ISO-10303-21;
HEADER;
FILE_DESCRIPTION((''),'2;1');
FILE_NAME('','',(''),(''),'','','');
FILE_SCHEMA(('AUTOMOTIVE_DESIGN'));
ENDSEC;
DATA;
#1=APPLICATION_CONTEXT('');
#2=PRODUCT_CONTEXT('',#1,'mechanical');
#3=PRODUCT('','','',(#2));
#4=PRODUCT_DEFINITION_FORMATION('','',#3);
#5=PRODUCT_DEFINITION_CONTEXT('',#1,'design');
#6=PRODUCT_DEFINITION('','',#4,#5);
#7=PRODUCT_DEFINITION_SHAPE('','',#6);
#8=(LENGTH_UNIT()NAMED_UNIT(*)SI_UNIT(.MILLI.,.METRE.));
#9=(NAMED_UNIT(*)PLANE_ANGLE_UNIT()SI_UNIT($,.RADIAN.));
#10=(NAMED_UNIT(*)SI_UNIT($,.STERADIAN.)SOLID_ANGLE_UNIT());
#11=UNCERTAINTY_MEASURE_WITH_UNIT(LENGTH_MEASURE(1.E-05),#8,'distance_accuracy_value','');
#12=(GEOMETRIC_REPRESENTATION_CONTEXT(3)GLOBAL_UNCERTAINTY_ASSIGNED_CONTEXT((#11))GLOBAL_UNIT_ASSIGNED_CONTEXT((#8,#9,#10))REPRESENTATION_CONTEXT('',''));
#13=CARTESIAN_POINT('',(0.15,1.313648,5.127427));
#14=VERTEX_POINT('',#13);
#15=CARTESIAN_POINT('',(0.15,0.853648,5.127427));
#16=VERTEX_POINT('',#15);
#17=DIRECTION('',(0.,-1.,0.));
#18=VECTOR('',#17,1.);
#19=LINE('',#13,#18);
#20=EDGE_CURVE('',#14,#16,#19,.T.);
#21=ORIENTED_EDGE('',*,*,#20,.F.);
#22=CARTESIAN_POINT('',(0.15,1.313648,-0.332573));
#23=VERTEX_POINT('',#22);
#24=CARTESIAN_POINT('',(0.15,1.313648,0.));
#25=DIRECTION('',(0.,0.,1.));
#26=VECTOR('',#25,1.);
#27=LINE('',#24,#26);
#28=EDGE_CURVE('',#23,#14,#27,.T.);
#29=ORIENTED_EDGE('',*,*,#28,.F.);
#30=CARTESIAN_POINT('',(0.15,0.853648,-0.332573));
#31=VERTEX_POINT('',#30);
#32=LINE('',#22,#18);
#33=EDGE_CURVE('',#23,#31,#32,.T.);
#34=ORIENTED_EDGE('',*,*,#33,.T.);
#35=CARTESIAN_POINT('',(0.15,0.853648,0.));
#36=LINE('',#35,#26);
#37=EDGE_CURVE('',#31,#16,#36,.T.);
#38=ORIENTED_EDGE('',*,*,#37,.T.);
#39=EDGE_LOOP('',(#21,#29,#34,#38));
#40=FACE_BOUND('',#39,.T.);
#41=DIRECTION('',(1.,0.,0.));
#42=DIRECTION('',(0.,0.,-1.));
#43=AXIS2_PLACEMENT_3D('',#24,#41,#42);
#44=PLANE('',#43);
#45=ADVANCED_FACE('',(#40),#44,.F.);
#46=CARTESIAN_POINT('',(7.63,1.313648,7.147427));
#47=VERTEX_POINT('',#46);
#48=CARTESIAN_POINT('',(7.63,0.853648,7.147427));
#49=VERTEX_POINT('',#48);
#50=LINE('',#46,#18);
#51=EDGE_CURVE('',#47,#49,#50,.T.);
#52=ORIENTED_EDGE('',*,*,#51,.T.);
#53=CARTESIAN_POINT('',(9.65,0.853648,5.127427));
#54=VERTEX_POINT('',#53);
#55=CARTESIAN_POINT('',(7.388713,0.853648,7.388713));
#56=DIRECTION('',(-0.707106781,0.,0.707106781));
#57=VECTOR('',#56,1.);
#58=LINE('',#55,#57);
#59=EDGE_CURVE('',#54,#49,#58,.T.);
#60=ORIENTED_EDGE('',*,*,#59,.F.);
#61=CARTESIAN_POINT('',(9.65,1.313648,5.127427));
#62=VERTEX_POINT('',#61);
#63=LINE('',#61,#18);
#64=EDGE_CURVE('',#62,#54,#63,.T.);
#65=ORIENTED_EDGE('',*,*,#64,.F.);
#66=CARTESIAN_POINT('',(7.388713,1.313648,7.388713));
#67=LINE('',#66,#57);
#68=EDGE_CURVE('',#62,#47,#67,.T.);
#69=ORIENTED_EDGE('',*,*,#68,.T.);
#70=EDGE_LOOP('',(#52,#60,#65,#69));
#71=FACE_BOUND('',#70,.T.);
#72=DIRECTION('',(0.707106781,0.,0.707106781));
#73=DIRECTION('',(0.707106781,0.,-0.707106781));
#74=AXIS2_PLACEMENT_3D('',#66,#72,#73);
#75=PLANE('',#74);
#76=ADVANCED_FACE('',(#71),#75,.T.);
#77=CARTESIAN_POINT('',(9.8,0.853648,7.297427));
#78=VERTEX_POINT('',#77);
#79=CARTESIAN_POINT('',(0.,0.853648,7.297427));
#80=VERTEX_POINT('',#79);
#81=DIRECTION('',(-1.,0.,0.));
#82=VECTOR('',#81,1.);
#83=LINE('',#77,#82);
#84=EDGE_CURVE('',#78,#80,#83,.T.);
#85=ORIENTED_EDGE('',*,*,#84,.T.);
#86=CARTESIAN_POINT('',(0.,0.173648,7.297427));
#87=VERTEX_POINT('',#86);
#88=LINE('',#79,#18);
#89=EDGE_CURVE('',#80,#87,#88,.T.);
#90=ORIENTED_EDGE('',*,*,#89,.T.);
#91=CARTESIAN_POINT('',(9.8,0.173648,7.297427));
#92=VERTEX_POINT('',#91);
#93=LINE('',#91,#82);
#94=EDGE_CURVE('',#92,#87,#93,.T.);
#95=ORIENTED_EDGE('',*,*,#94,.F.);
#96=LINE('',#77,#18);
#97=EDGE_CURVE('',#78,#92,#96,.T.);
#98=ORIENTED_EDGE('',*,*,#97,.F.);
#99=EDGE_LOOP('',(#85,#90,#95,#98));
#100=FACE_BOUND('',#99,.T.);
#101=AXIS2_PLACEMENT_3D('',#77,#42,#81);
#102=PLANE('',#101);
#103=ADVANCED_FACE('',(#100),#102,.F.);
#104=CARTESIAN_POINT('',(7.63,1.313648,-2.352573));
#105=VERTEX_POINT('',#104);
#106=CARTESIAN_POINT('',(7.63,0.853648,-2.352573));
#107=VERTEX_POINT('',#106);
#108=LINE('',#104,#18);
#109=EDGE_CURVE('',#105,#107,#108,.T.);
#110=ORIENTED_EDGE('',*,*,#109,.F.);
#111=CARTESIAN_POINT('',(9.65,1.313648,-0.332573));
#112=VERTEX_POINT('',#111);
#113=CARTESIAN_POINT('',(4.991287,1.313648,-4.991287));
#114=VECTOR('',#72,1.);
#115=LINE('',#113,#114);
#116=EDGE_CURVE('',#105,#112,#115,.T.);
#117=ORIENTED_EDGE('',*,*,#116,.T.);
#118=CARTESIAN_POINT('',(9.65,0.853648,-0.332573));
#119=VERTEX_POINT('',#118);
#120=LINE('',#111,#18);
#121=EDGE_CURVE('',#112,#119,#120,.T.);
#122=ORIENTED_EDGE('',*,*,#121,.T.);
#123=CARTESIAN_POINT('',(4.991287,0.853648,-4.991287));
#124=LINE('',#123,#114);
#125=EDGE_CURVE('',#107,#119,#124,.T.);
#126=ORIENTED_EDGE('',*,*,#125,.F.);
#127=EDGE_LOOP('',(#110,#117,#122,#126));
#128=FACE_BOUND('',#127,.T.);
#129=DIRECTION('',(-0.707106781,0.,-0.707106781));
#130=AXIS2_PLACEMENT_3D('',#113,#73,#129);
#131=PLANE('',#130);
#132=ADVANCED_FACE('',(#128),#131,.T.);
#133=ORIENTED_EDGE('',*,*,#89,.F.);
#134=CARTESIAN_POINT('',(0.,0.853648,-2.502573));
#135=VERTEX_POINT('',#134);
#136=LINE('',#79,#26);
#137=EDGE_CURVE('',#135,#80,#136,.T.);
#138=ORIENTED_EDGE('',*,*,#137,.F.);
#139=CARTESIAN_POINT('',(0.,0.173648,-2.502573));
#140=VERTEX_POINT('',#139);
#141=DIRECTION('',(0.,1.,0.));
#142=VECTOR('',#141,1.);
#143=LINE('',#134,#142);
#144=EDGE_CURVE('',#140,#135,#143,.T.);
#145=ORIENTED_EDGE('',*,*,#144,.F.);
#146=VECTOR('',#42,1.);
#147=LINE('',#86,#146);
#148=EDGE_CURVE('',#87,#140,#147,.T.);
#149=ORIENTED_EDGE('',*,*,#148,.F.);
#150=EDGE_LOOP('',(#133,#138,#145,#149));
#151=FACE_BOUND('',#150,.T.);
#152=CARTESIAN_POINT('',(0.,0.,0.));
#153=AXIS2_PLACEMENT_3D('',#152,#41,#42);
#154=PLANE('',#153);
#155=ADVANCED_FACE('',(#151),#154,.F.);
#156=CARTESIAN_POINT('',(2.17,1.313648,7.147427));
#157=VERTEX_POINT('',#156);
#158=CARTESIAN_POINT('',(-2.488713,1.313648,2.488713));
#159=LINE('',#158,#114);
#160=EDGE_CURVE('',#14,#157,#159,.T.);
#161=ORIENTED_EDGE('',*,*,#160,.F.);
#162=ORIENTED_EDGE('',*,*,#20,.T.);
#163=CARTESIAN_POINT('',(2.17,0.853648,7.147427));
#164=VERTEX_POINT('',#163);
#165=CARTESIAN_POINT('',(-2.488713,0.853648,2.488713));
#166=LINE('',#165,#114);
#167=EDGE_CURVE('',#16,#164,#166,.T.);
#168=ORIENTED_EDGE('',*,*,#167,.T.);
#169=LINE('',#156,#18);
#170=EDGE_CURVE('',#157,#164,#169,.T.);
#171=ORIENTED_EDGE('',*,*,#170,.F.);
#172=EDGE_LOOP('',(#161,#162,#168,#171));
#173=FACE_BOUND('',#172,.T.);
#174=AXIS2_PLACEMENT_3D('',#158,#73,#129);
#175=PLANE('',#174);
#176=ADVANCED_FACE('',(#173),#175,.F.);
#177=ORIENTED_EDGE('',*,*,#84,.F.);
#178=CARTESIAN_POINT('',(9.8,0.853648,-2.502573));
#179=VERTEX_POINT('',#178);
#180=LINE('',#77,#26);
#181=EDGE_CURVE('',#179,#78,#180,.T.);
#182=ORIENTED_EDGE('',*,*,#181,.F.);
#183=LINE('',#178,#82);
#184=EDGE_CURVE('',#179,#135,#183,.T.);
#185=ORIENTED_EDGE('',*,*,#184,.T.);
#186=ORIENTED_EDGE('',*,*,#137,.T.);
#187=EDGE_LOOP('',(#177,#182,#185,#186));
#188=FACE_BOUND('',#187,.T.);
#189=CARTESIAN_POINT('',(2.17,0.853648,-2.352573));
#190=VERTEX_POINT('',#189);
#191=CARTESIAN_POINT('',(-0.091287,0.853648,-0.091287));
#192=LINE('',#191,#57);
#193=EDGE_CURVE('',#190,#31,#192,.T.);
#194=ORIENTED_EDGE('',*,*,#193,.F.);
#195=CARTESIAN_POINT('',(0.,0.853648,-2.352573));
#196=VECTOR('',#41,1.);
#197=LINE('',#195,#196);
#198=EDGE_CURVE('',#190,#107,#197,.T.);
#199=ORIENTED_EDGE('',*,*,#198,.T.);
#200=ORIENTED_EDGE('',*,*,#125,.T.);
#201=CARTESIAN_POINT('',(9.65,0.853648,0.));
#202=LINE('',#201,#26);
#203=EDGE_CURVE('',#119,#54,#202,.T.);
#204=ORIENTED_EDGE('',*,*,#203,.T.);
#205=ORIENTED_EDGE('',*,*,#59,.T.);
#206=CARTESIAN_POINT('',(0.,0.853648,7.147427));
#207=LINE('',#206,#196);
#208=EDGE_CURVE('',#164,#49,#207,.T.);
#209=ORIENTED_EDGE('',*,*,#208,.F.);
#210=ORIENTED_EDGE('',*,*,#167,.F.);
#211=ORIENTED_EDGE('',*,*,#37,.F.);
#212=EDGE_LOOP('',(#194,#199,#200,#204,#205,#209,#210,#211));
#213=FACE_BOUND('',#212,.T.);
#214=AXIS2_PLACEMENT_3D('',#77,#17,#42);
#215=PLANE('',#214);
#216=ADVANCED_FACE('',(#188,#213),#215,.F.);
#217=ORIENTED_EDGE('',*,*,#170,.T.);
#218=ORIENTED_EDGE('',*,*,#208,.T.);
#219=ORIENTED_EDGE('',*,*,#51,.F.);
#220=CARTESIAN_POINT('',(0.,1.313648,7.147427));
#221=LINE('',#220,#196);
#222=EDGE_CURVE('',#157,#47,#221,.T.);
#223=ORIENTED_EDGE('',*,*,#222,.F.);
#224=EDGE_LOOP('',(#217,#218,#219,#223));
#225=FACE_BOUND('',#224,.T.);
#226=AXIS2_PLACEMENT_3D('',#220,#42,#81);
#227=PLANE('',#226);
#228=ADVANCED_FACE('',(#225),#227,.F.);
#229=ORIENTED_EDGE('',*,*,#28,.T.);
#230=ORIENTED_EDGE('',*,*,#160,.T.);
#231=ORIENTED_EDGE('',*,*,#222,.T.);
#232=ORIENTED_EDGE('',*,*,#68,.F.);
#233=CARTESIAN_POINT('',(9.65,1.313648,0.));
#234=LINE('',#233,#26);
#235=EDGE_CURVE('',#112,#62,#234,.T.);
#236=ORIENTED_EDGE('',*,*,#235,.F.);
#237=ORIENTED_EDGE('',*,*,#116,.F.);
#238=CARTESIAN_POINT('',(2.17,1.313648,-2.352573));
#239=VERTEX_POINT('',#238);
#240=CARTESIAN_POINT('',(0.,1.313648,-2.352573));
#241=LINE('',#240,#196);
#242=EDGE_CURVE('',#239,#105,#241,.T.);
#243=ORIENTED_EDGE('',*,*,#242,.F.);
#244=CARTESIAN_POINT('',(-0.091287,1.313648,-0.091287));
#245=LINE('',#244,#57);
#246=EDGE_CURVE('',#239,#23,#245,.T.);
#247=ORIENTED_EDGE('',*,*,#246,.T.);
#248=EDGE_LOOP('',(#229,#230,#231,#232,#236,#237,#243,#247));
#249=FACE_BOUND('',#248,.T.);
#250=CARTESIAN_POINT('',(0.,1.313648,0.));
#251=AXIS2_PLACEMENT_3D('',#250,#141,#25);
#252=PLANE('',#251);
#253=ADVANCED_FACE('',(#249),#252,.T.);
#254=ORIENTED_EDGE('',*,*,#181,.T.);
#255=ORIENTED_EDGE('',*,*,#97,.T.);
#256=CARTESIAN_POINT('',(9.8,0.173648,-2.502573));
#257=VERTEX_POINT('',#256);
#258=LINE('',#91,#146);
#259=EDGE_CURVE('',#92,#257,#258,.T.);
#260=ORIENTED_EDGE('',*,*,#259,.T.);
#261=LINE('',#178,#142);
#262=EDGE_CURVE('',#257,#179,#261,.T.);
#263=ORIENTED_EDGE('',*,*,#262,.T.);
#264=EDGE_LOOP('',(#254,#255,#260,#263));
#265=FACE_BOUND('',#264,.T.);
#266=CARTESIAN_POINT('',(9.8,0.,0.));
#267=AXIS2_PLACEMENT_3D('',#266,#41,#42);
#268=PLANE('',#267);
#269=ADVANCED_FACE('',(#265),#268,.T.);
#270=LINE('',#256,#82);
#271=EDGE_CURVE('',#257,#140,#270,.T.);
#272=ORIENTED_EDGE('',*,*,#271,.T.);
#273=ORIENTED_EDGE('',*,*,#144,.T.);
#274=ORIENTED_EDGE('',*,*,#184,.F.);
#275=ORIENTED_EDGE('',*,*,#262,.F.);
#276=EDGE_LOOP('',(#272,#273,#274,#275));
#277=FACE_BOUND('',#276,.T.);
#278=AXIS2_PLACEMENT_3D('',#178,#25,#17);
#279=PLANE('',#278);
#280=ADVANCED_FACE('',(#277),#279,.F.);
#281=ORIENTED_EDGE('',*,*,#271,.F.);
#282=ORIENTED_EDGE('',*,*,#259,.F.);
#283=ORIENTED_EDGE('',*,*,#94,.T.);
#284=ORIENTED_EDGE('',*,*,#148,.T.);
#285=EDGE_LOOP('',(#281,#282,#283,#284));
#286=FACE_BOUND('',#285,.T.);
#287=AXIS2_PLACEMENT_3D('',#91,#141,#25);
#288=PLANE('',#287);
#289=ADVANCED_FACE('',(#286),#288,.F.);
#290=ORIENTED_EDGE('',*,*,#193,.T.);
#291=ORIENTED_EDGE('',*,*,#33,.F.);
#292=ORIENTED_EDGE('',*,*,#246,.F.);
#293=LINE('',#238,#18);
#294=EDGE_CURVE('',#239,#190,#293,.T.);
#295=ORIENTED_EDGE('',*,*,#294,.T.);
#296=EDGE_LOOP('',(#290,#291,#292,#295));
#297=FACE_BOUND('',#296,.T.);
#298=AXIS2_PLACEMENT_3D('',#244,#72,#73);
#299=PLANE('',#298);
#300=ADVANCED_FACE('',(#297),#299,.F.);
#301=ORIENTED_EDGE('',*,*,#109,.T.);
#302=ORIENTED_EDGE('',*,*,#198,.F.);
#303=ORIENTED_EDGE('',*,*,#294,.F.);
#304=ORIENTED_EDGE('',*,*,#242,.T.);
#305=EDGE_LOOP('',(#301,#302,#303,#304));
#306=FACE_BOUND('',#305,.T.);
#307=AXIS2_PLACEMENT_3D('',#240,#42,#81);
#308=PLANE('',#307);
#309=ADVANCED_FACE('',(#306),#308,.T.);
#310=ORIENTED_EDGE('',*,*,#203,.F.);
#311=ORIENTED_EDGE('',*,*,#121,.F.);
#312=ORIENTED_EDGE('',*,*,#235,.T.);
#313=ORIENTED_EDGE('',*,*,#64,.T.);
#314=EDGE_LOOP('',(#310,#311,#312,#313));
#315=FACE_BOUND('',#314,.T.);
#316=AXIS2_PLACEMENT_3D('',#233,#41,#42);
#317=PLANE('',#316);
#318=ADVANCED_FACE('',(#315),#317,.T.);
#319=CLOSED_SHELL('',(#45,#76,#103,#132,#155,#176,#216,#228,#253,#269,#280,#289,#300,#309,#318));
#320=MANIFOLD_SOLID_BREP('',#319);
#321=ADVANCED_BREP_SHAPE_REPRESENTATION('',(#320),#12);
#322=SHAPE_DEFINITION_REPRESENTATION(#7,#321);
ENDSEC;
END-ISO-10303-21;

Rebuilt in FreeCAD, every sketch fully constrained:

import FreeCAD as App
import Part
import Sketcher
from FreeCAD import Vector


def add_polygon(sketch, points):
    """Adds a closed chain of lines whose ends are joined by coincident constraints."""
    first, n = sketch.GeometryCount, len(points)
    for a, b in zip(points, points[1:] + points[:1]):
        sketch.addGeometry(Part.LineSegment(App.Vector(*a, 0), App.Vector(*b, 0)), False)
    for i in range(n):
        sketch.addConstraint(Sketcher.Constraint("Coincident", first + i, 2, first + (i + 1) % n, 1))

doc = App.newDocument("Part")
body = doc.addObject("PartDesign::Body", "Body")

# Sketch on YZ plane
sketch1 = body.newObject("Sketcher::SketchObject", "Sketch")
sketch1.AttachmentSupport = (doc.getObject("YZ_Plane"), [""])
sketch1.MapMode = "FlatFace"
add_polygon(sketch1, [(0.9, 7.3), (0.2, 7.3), (0.2, -2.5), (0.9, -2.5)])  # lines 0-3
sketch1.addConstraint(Sketcher.Constraint("Horizontal", 0))
sketch1.addConstraint(Sketcher.Constraint("Vertical", 1))
sketch1.addConstraint(Sketcher.Constraint("Horizontal", 2))
sketch1.addConstraint(Sketcher.Constraint("Vertical", 3))
sketch1.addConstraint(Sketcher.Constraint("DistanceY", 1, 2, 1, 1, 9.8))
sketch1.addConstraint(Sketcher.Constraint("DistanceX", 0, 2, 0, 1, 0.68))
sketch1.addConstraint(Sketcher.Constraint("DistanceX", -1, 1, 0, 2, 0.173648))
sketch1.addConstraint(Sketcher.Constraint("DistanceY", -1, 1, 0, 2, 7.297427))
pad1 = body.newObject("PartDesign::Pad", "Pad")
pad1.Profile = sketch1
pad1.Length = 9.8

# Sketch on XZ plane
sketch2 = body.newObject("Sketcher::SketchObject", "Sketch001")
sketch2.AttachmentSupport = (doc.getObject("XZ_Plane"), [""])
sketch2.MapMode = "FlatFace"
sketch2.AttachmentOffset = App.Placement(Vector(0, 0, -0.853648), App.Rotation())
add_polygon(sketch2, [(7.6, -2.4), (2.2, -2.4), (0.1, -0.3), (0.1, 5.1), (2.2, 7.1), (7.6, 7.1), (9.7, 5.1), (9.7, -0.3)])  # lines 0-7
sketch2.addConstraint(Sketcher.Constraint("Horizontal", 0))
sketch2.addConstraint(Sketcher.Constraint("Vertical", 2))
sketch2.addConstraint(Sketcher.Constraint("Horizontal", 4))
sketch2.addConstraint(Sketcher.Constraint("Vertical", 6))
sketch2.addConstraint(Sketcher.Constraint("Perpendicular", 1, 3))
sketch2.addConstraint(Sketcher.Constraint("Perpendicular", 3, 5))
sketch2.addConstraint(Sketcher.Constraint("Perpendicular", 5, 7))
sketch2.addConstraint(Sketcher.Constraint("Horizontal", 2, 2, 5, 2))
sketch2.addConstraint(Sketcher.Constraint("Horizontal", 1, 2, 6, 2))
sketch2.addConstraint(Sketcher.Constraint("Vertical", 0, 2, 3, 2))
sketch2.addConstraint(Sketcher.Constraint("Vertical", 4, 2, 7, 2))
sketch2.addConstraint(Sketcher.Constraint("Equal", 4, 2))
sketch2.addConstraint(Sketcher.Constraint("DistanceX", 0, 2, 0, 1, 5.46))
sketch2.addConstraint(Sketcher.Constraint("DistanceY", 0, 2, 3, 2, 9.5))
sketch2.addConstraint(Sketcher.Constraint("DistanceX", -1, 1, 0, 2, 2.17))
sketch2.addConstraint(Sketcher.Constraint("DistanceY", 0, 2, -1, 1, 2.352573))
pad2 = body.newObject("PartDesign::Pad", "Pad001")
pad2.Profile = sketch2
pad2.Length = 0.46
pad2.Reversed = True

doc.recompute()
